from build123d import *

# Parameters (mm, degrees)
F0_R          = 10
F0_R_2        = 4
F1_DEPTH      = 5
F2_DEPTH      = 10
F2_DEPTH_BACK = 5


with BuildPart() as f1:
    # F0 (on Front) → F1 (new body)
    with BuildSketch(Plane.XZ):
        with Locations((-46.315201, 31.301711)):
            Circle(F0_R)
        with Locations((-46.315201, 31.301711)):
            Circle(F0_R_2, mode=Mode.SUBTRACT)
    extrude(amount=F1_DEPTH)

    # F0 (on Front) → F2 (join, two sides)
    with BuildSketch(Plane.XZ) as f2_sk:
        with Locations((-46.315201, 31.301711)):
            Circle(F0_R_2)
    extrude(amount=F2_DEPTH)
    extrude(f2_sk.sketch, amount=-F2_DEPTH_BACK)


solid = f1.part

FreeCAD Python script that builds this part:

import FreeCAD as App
import Part
import Sketcher

V = App.Vector

doc = App.newDocument("Part")
params = doc.addObject("Spreadsheet::Sheet", "Params")
for row, (alias, value) in enumerate([
    ("sketch1_diameter", "20 mm"),
    ("sketch1_diameter2", "8 mm"),
    ("pad1_length", "5 mm"),
    ("sketch2_diameter", "8 mm"),
    ("pad2_length", "10 mm"),
    ("pad2_length2", "5 mm"),
], start=1):
    params.set(f"A{row}", alias)
    params.set(f"B{row}", "=" + value)
    params.setAlias(f"B{row}", alias)

body = doc.addObject("PartDesign::Body", "Body")

sketch1 = body.newObject("Sketcher::SketchObject", "Sketch")
sketch1.AttachmentSupport = (doc.getObject("XZ_Plane"), [""])
sketch1.MapMode = "FlatFace"
sketch1.addGeometry([
    Part.Circle(V(-46.3, 31.3, 0), V(0, 0, 1), 10),
    Part.Circle(V(-46.3, 31.3, 0), V(0, 0, 1), 4),
], False)
sketch1.addConstraint([
    Sketcher.Constraint("Coincident", 1, 3, 0, 3),
    Sketcher.Constraint("Diameter", 0, 20.0),
    Sketcher.Constraint("Diameter", 1, 8.0),
    Sketcher.Constraint("DistanceX", 0, 3, -1, 1, 46.315201),
    Sketcher.Constraint("DistanceY", -1, 1, 0, 3, 31.301711),
])
sketch1.setExpression("Constraints[1]", "Params.sketch1_diameter")
sketch1.setExpression("Constraints[2]", "Params.sketch1_diameter2")
pad1 = body.newObject("PartDesign::Pad", "Pad")
pad1.Profile = sketch1
pad1.setExpression("Length", "Params.pad1_length")

sketch2 = body.newObject("Sketcher::SketchObject", "Sketch001")
sketch2.AttachmentSupport = (doc.getObject("XZ_Plane"), [""])
sketch2.MapMode = "FlatFace"
sketch2.addGeometry(Part.Circle(V(-46.3, 31.3, 0), V(0, 0, 1), 4), False)
sketch2.addConstraint([
    Sketcher.Constraint("Diameter", 0, 8.0),
    Sketcher.Constraint("DistanceX", 0, 3, -1, 1, 46.315201),
    Sketcher.Constraint("DistanceY", -1, 1, 0, 3, 31.301711),
])
sketch2.setExpression("Constraints[0]", "Params.sketch2_diameter")
pad2 = body.newObject("PartDesign::Pad", "Pad001")
pad2.Profile = sketch2
pad2.Type = "TwoLengths"
pad2.setExpression("Length", "Params.pad2_length")
pad2.setExpression("Length2", "Params.pad2_length2")

doc.recompute()
